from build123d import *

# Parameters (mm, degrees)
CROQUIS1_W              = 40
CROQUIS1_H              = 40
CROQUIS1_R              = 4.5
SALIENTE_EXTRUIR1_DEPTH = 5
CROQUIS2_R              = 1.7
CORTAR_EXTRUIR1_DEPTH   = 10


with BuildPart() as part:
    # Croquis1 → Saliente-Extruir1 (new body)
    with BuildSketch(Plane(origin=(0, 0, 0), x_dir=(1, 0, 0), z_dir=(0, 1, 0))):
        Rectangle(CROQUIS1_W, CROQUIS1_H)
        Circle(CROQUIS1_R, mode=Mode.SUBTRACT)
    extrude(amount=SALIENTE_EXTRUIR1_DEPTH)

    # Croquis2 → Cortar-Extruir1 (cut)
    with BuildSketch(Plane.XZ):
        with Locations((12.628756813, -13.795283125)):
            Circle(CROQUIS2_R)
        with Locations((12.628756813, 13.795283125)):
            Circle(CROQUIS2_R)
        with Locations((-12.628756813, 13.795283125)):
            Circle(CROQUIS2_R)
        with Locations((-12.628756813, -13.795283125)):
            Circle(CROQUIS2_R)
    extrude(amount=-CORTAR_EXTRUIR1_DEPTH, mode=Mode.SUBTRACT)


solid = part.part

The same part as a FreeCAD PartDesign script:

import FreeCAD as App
import Part
import Sketcher

V = App.Vector


def add_polygon(sketch, points):
    """Adds a closed chain of lines whose ends are joined by coincident constraints."""
    first, n = sketch.GeometryCount, len(points)
    for a, b in zip(points, points[1:] + points[:1]):
        sketch.addGeometry(Part.LineSegment(App.Vector(*a, 0), App.Vector(*b, 0)), False)
    for i in range(n):
        sketch.addConstraint(Sketcher.Constraint("Coincident", first + i, 2, first + (i + 1) % n, 1))

doc = App.newDocument("Part")
params = doc.addObject("Spreadsheet::Sheet", "Params")
for row, (alias, value) in enumerate([
    ("sketch1_diameter", "9 mm"),
    ("sketch1_width", "40 mm"),
    ("pad1_length", "5 mm"),
    ("sketch2_diameter", "3.4 mm"),
    ("pocket1_length", "10 mm"),
], start=1):
    params.set(f"A{row}", alias)
    params.set(f"B{row}", "=" + value)
    params.setAlias(f"B{row}", alias)

body = doc.addObject("PartDesign::Body", "Body")

# Sketch on XZ plane
sketch1 = body.newObject("Sketcher::SketchObject", "Sketch")
sketch1.AttachmentSupport = (doc.getObject("XZ_Plane"), [""])
sketch1.MapMode = "FlatFace"
add_polygon(sketch1, [(-20, -20), (-20, 20), (20, 20), (20, -20)])  # lines 0-3
sketch1.addGeometry(Part.Circle(V(0, 0, 0), V(0, 0, 1), 4.5), False)  # 4
sketch1.addConstraint(Sketcher.Constraint("Vertical", 0))
sketch1.addConstraint(Sketcher.Constraint("Horizontal", 1))
sketch1.addConstraint(Sketcher.Constraint("Vertical", 2))
sketch1.addConstraint(Sketcher.Constraint("Horizontal", 3))
sketch1.addConstraint(Sketcher.Constraint("Coincident", 4, 3, -1, 1))
sketch1.addConstraint(Sketcher.Constraint("Symmetric", 0, 2, 2, 2, -1, 1))
sketch1.addConstraint(Sketcher.Constraint("Equal", 3, 0))
sketch1.addConstraint(Sketcher.Constraint("Diameter", 4, 9.0))
sketch1.addConstraint(Sketcher.Constraint("DistanceX", 1, 1, 1, 2, 40.0))
sketch1.setExpression("Constraints[11]", "Params.sketch1_diameter")
sketch1.setExpression("Constraints[12]", "Params.sketch1_width")
pad1 = body.newObject("PartDesign::Pad", "Pad")
pad1.Profile = sketch1
pad1.setExpression("Length", "Params.pad1_length")
pad1.Reversed = True

# Sketch on XZ plane
sketch2 = body.newObject("Sketcher::SketchObject", "Sketch001")
sketch2.AttachmentSupport = (doc.getObject("XZ_Plane"), [""])
sketch2.MapMode = "FlatFace"
sketch2.addGeometry(Part.Circle(V(12.6, -13.8, 0), V(0, 0, 1), 1.7), False)
sketch2.addGeometry(Part.Circle(V(12.6, 13.8, 0), V(0, 0, 1), 1.7), False)
sketch2.addGeometry(Part.Circle(V(-12.6, 13.8, 0), V(0, 0, 1), 1.7), False)
sketch2.addGeometry(Part.Circle(V(-12.6, -13.8, 0), V(0, 0, 1), 1.7), False)
sketch2.addConstraint(Sketcher.Constraint("Equal", 0, 1))
sketch2.addConstraint(Sketcher.Constraint("Equal", 1, 2))
sketch2.addConstraint(Sketcher.Constraint("Equal", 2, 3))
sketch2.addConstraint(Sketcher.Constraint("Symmetric", 0, 3, 2, 3, -1, 1))
sketch2.addConstraint(Sketcher.Constraint("Symmetric", 1, 3, 3, 3, -1, 1))
sketch2.addConstraint(Sketcher.Constraint("Symmetric", 1, 3, 2, 3, -2))
sketch2.addConstraint(Sketcher.Constraint("Diameter", 0, 3.4))
sketch2.addConstraint(Sketcher.Constraint("DistanceX", -1, 1, 0, 3, 12.628757))
sketch2.addConstraint(Sketcher.Constraint("DistanceY", 0, 3, -1, 1, 13.795283))
sketch2.setExpression("Constraints[6]", "Params.sketch2_diameter")
pocket1 = body.newObject("PartDesign::Pocket", "Pocket")
pocket1.Profile = sketch2
pocket1.setExpression("Length", "Params.pocket1_length")

doc.recompute()
